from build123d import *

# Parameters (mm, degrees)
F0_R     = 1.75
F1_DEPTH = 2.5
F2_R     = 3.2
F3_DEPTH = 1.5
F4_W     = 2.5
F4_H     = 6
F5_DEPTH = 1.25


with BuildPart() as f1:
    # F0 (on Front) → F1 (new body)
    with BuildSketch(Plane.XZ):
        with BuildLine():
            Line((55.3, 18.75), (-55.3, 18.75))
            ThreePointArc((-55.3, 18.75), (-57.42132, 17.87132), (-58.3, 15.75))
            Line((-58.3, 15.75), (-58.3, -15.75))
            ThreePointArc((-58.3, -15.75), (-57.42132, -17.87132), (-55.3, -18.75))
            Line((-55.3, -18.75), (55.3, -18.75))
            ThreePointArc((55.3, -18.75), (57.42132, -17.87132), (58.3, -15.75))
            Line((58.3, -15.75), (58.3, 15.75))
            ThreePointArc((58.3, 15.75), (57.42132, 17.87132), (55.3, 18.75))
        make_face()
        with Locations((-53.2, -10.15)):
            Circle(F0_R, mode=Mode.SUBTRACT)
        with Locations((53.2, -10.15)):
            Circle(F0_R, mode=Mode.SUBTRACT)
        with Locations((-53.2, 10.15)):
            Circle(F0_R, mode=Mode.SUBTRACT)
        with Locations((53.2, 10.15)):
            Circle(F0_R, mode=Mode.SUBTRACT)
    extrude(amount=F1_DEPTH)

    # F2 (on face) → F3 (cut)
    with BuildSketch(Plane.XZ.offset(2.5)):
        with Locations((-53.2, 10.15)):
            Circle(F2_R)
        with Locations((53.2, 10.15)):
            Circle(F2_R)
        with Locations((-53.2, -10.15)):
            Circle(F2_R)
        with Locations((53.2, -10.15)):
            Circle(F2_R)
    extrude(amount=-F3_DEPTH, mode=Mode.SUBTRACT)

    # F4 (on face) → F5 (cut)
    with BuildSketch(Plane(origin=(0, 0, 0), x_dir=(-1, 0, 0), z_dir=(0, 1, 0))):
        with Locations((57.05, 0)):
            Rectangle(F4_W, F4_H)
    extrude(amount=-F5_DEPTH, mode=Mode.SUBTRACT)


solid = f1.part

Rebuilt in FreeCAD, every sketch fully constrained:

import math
import FreeCAD as App
import Part
import Sketcher
from FreeCAD import Vector

doc = App.newDocument("Part")
body = doc.addObject("PartDesign::Body", "Body")

# Sketch on XZ plane
sketch1 = body.newObject("Sketcher::SketchObject", "Sketch")
sketch1.AttachmentSupport = (doc.getObject("XZ_Plane"), [""])
sketch1.MapMode = "FlatFace"
sketch1.addGeometry(Part.LineSegment(Vector(55.3, 18.8, 0), Vector(-55.3, 18.8, 0)), False)
sketch1.addGeometry(Part.ArcOfCircle(Part.Circle(Vector(-55.3, 15.7, 0), Vector(0, 0, 1), 3), math.radians(90), math.radians(180)), False)
sketch1.addGeometry(Part.LineSegment(Vector(-58.3, 15.8, 0), Vector(-58.3, -15.8, 0)), False)
sketch1.addGeometry(Part.ArcOfCircle(Part.Circle(Vector(-55.3, -15.7, 0), Vector(0, 0, 1), 3), math.radians(-180), math.radians(-90)), False)
sketch1.addGeometry(Part.LineSegment(Vector(-55.3, -18.8, 0), Vector(55.3, -18.8, 0)), False)
sketch1.addGeometry(Part.ArcOfCircle(Part.Circle(Vector(55.3, -15.7, 0), Vector(0, 0, 1), 3), math.radians(-90), math.radians(0)), False)
sketch1.addGeometry(Part.LineSegment(Vector(58.3, -15.8, 0), Vector(58.3, 15.8, 0)), False)
sketch1.addGeometry(Part.ArcOfCircle(Part.Circle(Vector(55.3, 15.7, 0), Vector(0, 0, 1), 3), math.radians(0), math.radians(90)), False)
sketch1.addGeometry(Part.Circle(Vector(-53.2, -10.2, 0), Vector(0, 0, 1), 1.8), False)
sketch1.addGeometry(Part.Circle(Vector(53.2, -10.2, 0), Vector(0, 0, 1), 1.8), False)
sketch1.addGeometry(Part.Circle(Vector(-53.2, 10.2, 0), Vector(0, 0, 1), 1.8), False)
sketch1.addGeometry(Part.Circle(Vector(53.2, 10.2, 0), Vector(0, 0, 1), 1.8), False)
sketch1.addConstraint(Sketcher.Constraint("Tangent", 0, 2, 1, 1))
sketch1.addConstraint(Sketcher.Constraint("Tangent", 1, 2, 2, 1))
sketch1.addConstraint(Sketcher.Constraint("Tangent", 2, 2, 3, 1))
sketch1.addConstraint(Sketcher.Constraint("Tangent", 3, 2, 4, 1))
sketch1.addConstraint(Sketcher.Constraint("Tangent", 4, 2, 5, 1))
sketch1.addConstraint(Sketcher.Constraint("Tangent", 5, 2, 6, 1))
sketch1.addConstraint(Sketcher.Constraint("Tangent", 6, 2, 7, 1))
sketch1.addConstraint(Sketcher.Constraint("Tangent", 7, 2, 0, 1))
sketch1.addConstraint(Sketcher.Constraint("Horizontal", 0))
sketch1.addConstraint(Sketcher.Constraint("Vertical", 2))
sketch1.addConstraint(Sketcher.Constraint("Horizontal", 4))
sketch1.addConstraint(Sketcher.Constraint("Vertical", 6))
sketch1.addConstraint(Sketcher.Constraint("Equal", 1, 3))
sketch1.addConstraint(Sketcher.Constraint("Equal", 3, 5))
sketch1.addConstraint(Sketcher.Constraint("Equal", 5, 7))
sketch1.addConstraint(Sketcher.Constraint("Equal", 8, 9))
sketch1.addConstraint(Sketcher.Constraint("Equal", 9, 10))
sketch1.addConstraint(Sketcher.Constraint("Equal", 10, 11))
sketch1.addConstraint(Sketcher.Constraint("Symmetric", 1, 3, 5, 3, -1, 1))
sketch1.addConstraint(Sketcher.Constraint("Symmetric", 9, 3, 10, 3, -1, 1))
sketch1.addConstraint(Sketcher.Constraint("Symmetric", 8, 3, 11, 3, -1, 1))
sketch1.addConstraint(Sketcher.Constraint("Symmetric", 8, 3, 9, 3, -2))
sketch1.addConstraint(Sketcher.Constraint("Radius", 1, 3.000001))
sketch1.addConstraint(Sketcher.Constraint("Diameter", 8, 3.5))
sketch1.addConstraint(Sketcher.Constraint("DistanceX", 0, 2, 0, 1, 110.6))
sketch1.addConstraint(Sketcher.Constraint("DistanceY", 2, 2, 2, 1, 31.5))
sketch1.addConstraint(Sketcher.Constraint("DistanceX", 8, 3, -1, 1, 53.2))
sketch1.addConstraint(Sketcher.Constraint("DistanceY", 3, 3, 8, 3, 5.599999))
pad1 = body.newObject("PartDesign::Pad", "Pad")
pad1.Profile = sketch1
pad1.Length = 2.5

# Sketch on XZ plane
sketch2 = body.newObject("Sketcher::SketchObject", "Sketch001")
sketch2.AttachmentSupport = (doc.getObject("XZ_Plane"), [""])
sketch2.MapMode = "FlatFace"
sketch2.AttachmentOffset = App.Placement(Vector(0, 0, 2.5), App.Rotation())
sketch2.addGeometry(Part.Circle(Vector(-53.2, 10.2, 0), Vector(0, 0, 1), 3.2), False)
sketch2.addGeometry(Part.Circle(Vector(53.2, 10.2, 0), Vector(0, 0, 1), 3.2), False)
sketch2.addGeometry(Part.Circle(Vector(-53.2, -10.2, 0), Vector(0, 0, 1), 3.2), False)
sketch2.addGeometry(Part.Circle(Vector(53.2, -10.2, 0), Vector(0, 0, 1), 3.2), False)
sketch2.addConstraint(Sketcher.Constraint("Equal", 0, 1))
sketch2.addConstraint(Sketcher.Constraint("Equal", 1, 2))
sketch2.addConstraint(Sketcher.Constraint("Equal", 2, 3))
sketch2.addConstraint(Sketcher.Constraint("Symmetric", 1, 3, 2, 3, -1, 1))
sketch2.addConstraint(Sketcher.Constraint("Symmetric", 0, 3, 3, 3, -1, 1))
sketch2.addConstraint(Sketcher.Constraint("Symmetric", 0, 3, 1, 3, -2))
sketch2.addConstraint(Sketcher.Constraint("Diameter", 0, 6.4))
sketch2.addConstraint(Sketcher.Constraint("DistanceX", 0, 3, -1, 1, 53.2))
sketch2.addConstraint(Sketcher.Constraint("DistanceY", 2, 3, 0, 3, 20.3))
pocket1 = body.newObject("PartDesign::Pocket", "Pocket")
pocket1.Profile = sketch2
pocket1.Length = 1.5

# Sketch on XZ plane
sketch3 = body.newObject("Sketcher::SketchObject", "Sketch002")
sketch3.AttachmentSupport = (doc.getObject("XZ_Plane"), [""])
sketch3.MapMode = "FlatFace"
sketch3.addGeometry(Part.LineSegment(Vector(-55.8, 3, 0), Vector(-55.8, -3, 0)), False)
sketch3.addGeometry(Part.LineSegment(Vector(-55.8, -3, 0), Vector(-58.3, -3, 0)), False)
sketch3.addGeometry(Part.LineSegment(Vector(-58.3, -3, 0), Vector(-58.3, 3, 0)), False)
sketch3.addGeometry(Part.LineSegment(Vector(-58.3, 3, 0), Vector(-55.8, 3, 0)), False)
sketch3.addConstraint(Sketcher.Constraint("Coincident", 0, 2, 1, 1))
sketch3.addConstraint(Sketcher.Constraint("Coincident", 1, 2, 2, 1))
sketch3.addConstraint(Sketcher.Constraint("Coincident", 2, 2, 3, 1))
sketch3.addConstraint(Sketcher.Constraint("Coincident", 3, 2, 0, 1))
sketch3.addConstraint(Sketcher.Constraint("Vertical", 0))
sketch3.addConstraint(Sketcher.Constraint("Horizontal", 1))
sketch3.addConstraint(Sketcher.Constraint("Vertical", 2))
sketch3.addConstraint(Sketcher.Constraint("Horizontal", 3))
sketch3.addConstraint(Sketcher.Constraint("DistanceY", 0, 2, 0, 1, 6.0))
sketch3.addConstraint(Sketcher.Constraint("DistanceX", 1, 2, 1, 1, 2.5))
sketch3.addConstraint(Sketcher.Constraint("DistanceY", 0, 2, -1, 1, 3.0))
sketch3.addConstraint(Sketcher.Constraint("DistanceX", 0, 2, -1, 1, 55.8))
pocket2 = body.newObject("PartDesign::Pocket", "Pocket001")
pocket2.Profile = sketch3
pocket2.Length = 1.25
pocket2.Reversed = True

doc.recompute()
